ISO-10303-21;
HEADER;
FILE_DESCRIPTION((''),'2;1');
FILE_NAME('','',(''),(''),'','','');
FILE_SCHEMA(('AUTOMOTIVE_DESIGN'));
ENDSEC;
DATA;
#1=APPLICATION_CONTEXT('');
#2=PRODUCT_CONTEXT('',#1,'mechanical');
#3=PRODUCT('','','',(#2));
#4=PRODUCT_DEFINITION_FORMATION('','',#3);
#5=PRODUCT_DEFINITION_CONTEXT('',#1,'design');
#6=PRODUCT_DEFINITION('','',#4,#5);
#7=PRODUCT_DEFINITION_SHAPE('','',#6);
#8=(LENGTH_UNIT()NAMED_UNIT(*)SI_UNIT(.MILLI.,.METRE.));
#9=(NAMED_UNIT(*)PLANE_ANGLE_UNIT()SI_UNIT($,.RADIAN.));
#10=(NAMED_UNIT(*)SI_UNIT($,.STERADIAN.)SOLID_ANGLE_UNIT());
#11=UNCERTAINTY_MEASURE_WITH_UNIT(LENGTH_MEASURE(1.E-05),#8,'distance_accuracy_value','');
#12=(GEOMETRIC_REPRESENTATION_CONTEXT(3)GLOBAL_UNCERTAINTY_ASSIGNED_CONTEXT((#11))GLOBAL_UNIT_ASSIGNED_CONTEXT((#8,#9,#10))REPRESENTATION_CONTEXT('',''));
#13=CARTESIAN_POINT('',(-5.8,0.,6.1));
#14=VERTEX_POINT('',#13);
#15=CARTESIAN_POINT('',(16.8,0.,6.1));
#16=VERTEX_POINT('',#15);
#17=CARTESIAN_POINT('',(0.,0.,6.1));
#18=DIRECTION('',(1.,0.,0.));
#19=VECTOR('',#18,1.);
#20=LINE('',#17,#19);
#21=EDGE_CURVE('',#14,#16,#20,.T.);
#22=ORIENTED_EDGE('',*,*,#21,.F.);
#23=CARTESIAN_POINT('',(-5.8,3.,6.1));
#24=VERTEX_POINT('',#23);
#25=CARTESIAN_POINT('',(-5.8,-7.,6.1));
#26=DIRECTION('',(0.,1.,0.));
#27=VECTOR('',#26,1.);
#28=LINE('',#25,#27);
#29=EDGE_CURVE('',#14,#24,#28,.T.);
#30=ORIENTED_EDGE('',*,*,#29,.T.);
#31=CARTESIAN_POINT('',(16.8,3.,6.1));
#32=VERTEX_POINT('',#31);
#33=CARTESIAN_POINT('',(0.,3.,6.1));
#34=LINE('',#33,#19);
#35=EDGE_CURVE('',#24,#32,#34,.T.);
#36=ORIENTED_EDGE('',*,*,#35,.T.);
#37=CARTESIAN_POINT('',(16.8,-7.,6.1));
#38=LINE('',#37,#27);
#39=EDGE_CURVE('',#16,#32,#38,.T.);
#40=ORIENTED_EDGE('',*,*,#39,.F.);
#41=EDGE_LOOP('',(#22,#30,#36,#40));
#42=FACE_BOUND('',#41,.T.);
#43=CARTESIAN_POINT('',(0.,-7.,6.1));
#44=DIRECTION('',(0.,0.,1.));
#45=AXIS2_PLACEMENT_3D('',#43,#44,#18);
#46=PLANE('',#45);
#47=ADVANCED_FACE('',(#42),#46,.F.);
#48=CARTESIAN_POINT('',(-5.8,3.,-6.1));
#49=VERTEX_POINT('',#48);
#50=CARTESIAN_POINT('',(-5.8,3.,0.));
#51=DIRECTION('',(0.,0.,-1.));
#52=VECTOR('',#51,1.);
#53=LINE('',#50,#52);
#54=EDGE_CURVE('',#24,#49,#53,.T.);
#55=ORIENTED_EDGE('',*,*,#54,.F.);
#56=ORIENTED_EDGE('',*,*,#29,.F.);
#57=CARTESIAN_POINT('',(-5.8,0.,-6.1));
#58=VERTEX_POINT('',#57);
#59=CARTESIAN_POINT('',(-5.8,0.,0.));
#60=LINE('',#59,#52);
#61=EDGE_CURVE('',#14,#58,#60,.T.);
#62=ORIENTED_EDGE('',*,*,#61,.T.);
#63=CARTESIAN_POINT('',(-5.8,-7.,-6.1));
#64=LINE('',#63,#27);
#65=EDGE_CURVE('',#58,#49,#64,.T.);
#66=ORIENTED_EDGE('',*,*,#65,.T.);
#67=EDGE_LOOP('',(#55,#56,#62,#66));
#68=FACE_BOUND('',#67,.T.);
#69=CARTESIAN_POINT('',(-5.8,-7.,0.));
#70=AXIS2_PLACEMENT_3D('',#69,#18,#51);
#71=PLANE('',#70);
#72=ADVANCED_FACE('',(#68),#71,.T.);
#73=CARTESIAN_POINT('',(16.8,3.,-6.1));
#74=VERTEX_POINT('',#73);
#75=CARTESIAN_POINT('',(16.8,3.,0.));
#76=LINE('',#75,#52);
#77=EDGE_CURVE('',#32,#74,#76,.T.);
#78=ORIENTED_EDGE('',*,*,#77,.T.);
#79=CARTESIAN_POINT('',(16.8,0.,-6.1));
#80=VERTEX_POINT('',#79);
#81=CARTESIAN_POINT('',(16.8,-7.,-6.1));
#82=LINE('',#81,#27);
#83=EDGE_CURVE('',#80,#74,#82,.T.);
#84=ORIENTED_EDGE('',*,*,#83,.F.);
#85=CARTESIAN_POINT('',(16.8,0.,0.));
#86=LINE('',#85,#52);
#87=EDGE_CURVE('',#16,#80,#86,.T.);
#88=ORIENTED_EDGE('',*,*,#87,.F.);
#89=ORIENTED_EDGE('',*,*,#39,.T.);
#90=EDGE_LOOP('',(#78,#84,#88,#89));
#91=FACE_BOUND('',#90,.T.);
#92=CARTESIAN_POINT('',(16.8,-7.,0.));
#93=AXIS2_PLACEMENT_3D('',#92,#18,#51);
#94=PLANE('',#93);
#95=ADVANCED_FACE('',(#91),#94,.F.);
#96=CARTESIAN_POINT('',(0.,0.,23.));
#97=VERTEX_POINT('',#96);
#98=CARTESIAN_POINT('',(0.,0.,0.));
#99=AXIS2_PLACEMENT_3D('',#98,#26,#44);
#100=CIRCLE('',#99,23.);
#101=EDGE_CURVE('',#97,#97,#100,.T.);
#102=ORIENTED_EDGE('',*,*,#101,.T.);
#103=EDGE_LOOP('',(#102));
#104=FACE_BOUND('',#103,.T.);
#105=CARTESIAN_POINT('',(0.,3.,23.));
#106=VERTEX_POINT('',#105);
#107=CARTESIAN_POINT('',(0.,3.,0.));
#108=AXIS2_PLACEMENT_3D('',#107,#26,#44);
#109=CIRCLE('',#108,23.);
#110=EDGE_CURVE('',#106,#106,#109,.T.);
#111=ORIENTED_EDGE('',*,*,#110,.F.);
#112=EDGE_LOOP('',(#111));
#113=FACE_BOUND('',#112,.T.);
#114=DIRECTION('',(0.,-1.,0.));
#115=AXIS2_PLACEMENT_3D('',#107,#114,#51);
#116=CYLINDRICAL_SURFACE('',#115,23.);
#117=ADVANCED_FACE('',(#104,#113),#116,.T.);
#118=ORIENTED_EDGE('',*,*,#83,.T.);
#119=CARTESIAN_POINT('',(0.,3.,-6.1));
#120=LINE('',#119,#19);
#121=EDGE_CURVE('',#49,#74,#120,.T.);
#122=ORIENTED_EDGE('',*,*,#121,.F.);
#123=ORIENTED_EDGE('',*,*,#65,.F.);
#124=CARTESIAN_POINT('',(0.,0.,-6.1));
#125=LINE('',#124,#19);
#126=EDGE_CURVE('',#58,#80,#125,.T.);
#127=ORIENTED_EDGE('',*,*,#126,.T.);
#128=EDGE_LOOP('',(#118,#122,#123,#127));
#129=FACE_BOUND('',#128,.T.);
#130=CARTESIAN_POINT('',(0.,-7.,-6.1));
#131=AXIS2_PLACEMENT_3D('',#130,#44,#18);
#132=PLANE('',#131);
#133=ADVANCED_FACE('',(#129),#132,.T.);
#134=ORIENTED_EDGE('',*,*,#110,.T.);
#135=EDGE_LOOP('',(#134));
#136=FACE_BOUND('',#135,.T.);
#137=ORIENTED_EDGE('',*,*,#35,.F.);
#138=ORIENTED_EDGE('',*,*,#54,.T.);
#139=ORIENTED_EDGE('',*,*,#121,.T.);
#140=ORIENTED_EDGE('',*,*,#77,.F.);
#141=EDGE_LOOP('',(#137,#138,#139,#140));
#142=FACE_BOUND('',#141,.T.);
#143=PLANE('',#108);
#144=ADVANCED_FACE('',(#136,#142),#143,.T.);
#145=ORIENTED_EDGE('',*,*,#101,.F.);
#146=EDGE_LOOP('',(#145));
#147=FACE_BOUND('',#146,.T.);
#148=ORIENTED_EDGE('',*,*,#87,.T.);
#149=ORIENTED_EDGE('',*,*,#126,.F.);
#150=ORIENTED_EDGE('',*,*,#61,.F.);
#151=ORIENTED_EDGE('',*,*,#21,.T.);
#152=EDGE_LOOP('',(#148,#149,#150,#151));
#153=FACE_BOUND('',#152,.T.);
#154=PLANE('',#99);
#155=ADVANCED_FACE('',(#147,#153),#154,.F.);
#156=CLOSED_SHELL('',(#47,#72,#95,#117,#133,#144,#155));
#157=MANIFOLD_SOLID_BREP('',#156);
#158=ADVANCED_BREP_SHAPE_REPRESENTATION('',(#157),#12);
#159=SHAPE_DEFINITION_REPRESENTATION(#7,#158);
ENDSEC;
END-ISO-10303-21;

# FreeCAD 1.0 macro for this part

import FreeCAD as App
import Part
import Sketcher
Q = App.Units.Quantity


def add_polygon(sketch, points):
    """Adds a closed chain of lines whose ends are joined by coincident constraints."""
    first, n = sketch.GeometryCount, len(points)
    for a, b in zip(points, points[1:] + points[:1]):
        sketch.addGeometry(Part.LineSegment(App.Vector(*a, 0), App.Vector(*b, 0)), False)
    for i in range(n):
        sketch.addConstraint(Sketcher.Constraint("Coincident", first + i, 2, first + (i + 1) % n, 1))

doc = App.newDocument("Part")
params = doc.addObject("Spreadsheet::Sheet", "Params")
for row, (alias, value) in enumerate([
    ("sketch1_diameter", "46 mm"),
    ("pad1_length", "3 mm"),
    ("sketch2_width", "22.6 mm"),
    ("sketch2_height", "12.2 mm"),
    ("pocket1_length", "10 mm"),
], start=1):
    params.set(f"A{row}", alias)
    params.set(f"B{row}", "=" + value)
    params.setAlias(f"B{row}", alias)

body = doc.addObject("PartDesign::Body", "Body")

sketch1 = body.newObject("Sketcher::SketchObject", "Sketch")
sketch1.AttachmentSupport = (doc.getObject("XZ_Plane"), [""])
sketch1.MapMode = "FlatFace"
sketch1.addGeometry(Part.Circle(App.Vector(0, 0, 0), App.Vector(0, 0, 1), 23), False)
sketch1.addConstraint(Sketcher.Constraint("Coincident", 0, 3, -1, 1))
sketch1.addConstraint(Sketcher.Constraint("Diameter", 0, Q("46 mm")))
sketch1.setExpression("Constraints[1]", "Params.sketch1_diameter")
pad1 = body.newObject("PartDesign::Pad", "Pad")
pad1.Profile = sketch1
pad1.setExpression("Length", "Params.pad1_length")
pad1.Reversed = True

sketch2 = body.newObject("Sketcher::SketchObject", "Sketch001")
sketch2.AttachmentSupport = (doc.getObject("XZ_Plane"), [""])
sketch2.MapMode = "FlatFace"
sketch2.AttachmentOffset = App.Placement(App.Vector(0, 0, -3), App.Rotation())
add_polygon(sketch2, [(-5.8, -6.1), (-5.8, 6.1), (16.8, 6.1), (16.8, -6.1)])
sketch2.addConstraint(Sketcher.Constraint("Vertical", 0))
sketch2.addConstraint(Sketcher.Constraint("Horizontal", 1))
sketch2.addConstraint(Sketcher.Constraint("Vertical", 2))
sketch2.addConstraint(Sketcher.Constraint("Horizontal", 3))
sketch2.addConstraint(Sketcher.Constraint("DistanceX", 1, 1, 1, 2, Q("22.6 mm")))
sketch2.addConstraint(Sketcher.Constraint("DistanceY", 0, 1, 0, 2, Q("12.2 mm")))
sketch2.addConstraint(Sketcher.Constraint("DistanceX", 0, 2, -1, 1, Q("5.8 mm")))
sketch2.addConstraint(Sketcher.Constraint("DistanceY", -1, 1, 0, 2, Q("6.1 mm")))
sketch2.setExpression("Constraints[8]", "Params.sketch2_width")
sketch2.setExpression("Constraints[9]", "Params.sketch2_height")
pocket1 = body.newObject("PartDesign::Pocket", "Pocket")
pocket1.Profile = sketch2
pocket1.setExpression("Length", "Params.pocket1_length")
pocket1.Reversed = True

doc.recompute()
